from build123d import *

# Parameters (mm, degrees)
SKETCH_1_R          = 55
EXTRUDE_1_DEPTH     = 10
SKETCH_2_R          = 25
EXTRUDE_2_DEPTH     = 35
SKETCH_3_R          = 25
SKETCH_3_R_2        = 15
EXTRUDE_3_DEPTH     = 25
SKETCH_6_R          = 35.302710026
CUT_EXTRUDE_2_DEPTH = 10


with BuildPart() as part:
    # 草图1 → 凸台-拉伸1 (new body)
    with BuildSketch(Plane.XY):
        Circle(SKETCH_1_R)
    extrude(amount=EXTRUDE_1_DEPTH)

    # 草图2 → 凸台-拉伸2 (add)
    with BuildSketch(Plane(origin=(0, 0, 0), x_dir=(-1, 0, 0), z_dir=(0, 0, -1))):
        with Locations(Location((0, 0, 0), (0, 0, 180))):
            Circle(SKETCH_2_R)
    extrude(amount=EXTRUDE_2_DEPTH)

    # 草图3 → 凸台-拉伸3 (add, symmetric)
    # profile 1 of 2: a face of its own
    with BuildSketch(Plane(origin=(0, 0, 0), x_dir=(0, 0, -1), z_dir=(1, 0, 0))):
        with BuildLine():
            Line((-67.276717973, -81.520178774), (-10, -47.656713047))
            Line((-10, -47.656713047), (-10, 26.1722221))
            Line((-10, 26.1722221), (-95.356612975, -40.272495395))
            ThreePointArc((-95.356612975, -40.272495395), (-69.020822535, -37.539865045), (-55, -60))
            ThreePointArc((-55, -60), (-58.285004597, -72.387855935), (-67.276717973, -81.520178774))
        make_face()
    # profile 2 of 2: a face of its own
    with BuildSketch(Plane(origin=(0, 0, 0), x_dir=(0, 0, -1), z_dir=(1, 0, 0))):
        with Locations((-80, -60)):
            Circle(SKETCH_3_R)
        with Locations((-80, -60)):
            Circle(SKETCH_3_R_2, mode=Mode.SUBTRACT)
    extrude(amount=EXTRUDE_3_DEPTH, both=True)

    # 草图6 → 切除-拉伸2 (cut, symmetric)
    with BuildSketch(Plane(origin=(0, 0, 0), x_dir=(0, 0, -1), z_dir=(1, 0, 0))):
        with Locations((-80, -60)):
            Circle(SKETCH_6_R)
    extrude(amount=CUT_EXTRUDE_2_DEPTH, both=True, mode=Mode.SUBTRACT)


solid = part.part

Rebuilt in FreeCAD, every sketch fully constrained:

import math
import FreeCAD as App
import Part
import Sketcher
Q = App.Units.Quantity

doc = App.newDocument("Part")
body = doc.addObject("PartDesign::Body", "Body")

# Sketch on XY plane
sketch1 = doc.addObject("Sketcher::SketchObject", "Sketch")
body.addObject(sketch1)
sketch1.AttachmentSupport = (doc.XY_Plane, [""])
sketch1.MapMode = "FlatFace"
sketch1.addGeometry(Part.Circle(App.Vector(0, 0, 0), App.Vector(0, 0, 1), 55), False)
sketch1.addConstraint(Sketcher.Constraint("Coincident", 0, 3, -1, 1))
sketch1.addConstraint(Sketcher.Constraint("Diameter", 0, Q("110 mm")))
pad1 = doc.addObject("PartDesign::Pad", "Pad")
body.addObject(pad1)
pad1.Profile = sketch1
pad1.Length = 10

# Sketch on XY plane
sketch2 = doc.addObject("Sketcher::SketchObject", "Sketch001")
body.addObject(sketch2)
sketch2.AttachmentSupport = (doc.XY_Plane, [""])
sketch2.MapMode = "FlatFace"
sketch2.addGeometry(Part.Circle(App.Vector(0, 0, 0), App.Vector(0, 0, 1), 25), False)
sketch2.addConstraint(Sketcher.Constraint("Coincident", 0, 3, -1, 1))
sketch2.addConstraint(Sketcher.Constraint("Diameter", 0, Q("50 mm")))
pad2 = doc.addObject("PartDesign::Pad", "Pad001")
body.addObject(pad2)
pad2.Profile = sketch2
pad2.Length = 35
pad2.Reversed = True

# Sketch on YZ plane
sketch3 = doc.addObject("Sketcher::SketchObject", "Sketch002")
body.addObject(sketch3)
sketch3.AttachmentSupport = (doc.YZ_Plane, [""])
sketch3.MapMode = "FlatFace"
sketch3.addGeometry(Part.LineSegment(App.Vector(-82, 67, 0), App.Vector(-48, 10, 0)), False)
sketch3.addGeometry(Part.LineSegment(App.Vector(-48, 10, 0), App.Vector(26, 10, 0)), False)
sketch3.addGeometry(Part.LineSegment(App.Vector(26, 10, 0), App.Vector(-40, 95, 0)), False)
sketch3.addGeometry(Part.ArcOfCircle(Part.Circle(App.Vector(-60, 80, 0), App.Vector(0, 0, 1), 25), math.radians(38), math.radians(211)), False)
sketch3.addGeometry(Part.Circle(App.Vector(-60, 80, 0), App.Vector(0, 0, 1), 15), False)
sketch3.addConstraint(Sketcher.Constraint("Coincident", 0, 2, 1, 1))
sketch3.addConstraint(Sketcher.Constraint("Coincident", 1, 2, 2, 1))
sketch3.addConstraint(Sketcher.Constraint("Tangent", 2, 2, 3, 1))
sketch3.addConstraint(Sketcher.Constraint("Tangent", 3, 2, 0, 1))
sketch3.addConstraint(Sketcher.Constraint("Horizontal", 1))
sketch3.addConstraint(Sketcher.Constraint("Coincident", 4, 3, 3, 3))
sketch3.addConstraint(Sketcher.Constraint("Diameter", 4, Q("30 mm")))
sketch3.addConstraint(Sketcher.Constraint("Radius", 3, Q("25 mm")))
sketch3.addConstraint(Sketcher.Constraint("DistanceX", 3, 3, -1, 1, Q("60 mm")))
sketch3.addConstraint(Sketcher.Constraint("DistanceY", -1, 1, 3, 3, Q("80 mm")))
sketch3.addConstraint(Sketcher.Constraint("DistanceY", -1, 1, 0, 2, Q("10 mm")))
sketch3.addConstraint(Sketcher.Constraint("DistanceX", 3, 2, 1, 2, Q("107.692401 mm")))
sketch3.addConstraint(Sketcher.Constraint("Distance", 2, Q("108.169551 mm")))
pad3 = doc.addObject("PartDesign::Pad", "Pad002")
body.addObject(pad3)
pad3.Profile = sketch3
pad3.Length = 50
pad3.Midplane = True

# Sketch on YZ plane
sketch4 = doc.addObject("Sketcher::SketchObject", "Sketch003")
body.addObject(sketch4)
sketch4.AttachmentSupport = (doc.YZ_Plane, [""])
sketch4.MapMode = "FlatFace"
sketch4.addGeometry(Part.Circle(App.Vector(-60, 80, 0), App.Vector(0, 0, 1), 35), False)
sketch4.addConstraint(Sketcher.Constraint("DistanceX", 0, 3, -1, 1, Q("60 mm")))
sketch4.addConstraint(Sketcher.Constraint("DistanceY", -1, 1, 0, 3, Q("80 mm")))
sketch4.addConstraint(Sketcher.Constraint("Diameter", 0, Q("70.60542 mm")))
pocket1 = doc.addObject("PartDesign::Pocket", "Pocket")
body.addObject(pocket1)
pocket1.Profile = sketch4
pocket1.Length = 20
pocket1.Midplane = True

doc.recompute()
